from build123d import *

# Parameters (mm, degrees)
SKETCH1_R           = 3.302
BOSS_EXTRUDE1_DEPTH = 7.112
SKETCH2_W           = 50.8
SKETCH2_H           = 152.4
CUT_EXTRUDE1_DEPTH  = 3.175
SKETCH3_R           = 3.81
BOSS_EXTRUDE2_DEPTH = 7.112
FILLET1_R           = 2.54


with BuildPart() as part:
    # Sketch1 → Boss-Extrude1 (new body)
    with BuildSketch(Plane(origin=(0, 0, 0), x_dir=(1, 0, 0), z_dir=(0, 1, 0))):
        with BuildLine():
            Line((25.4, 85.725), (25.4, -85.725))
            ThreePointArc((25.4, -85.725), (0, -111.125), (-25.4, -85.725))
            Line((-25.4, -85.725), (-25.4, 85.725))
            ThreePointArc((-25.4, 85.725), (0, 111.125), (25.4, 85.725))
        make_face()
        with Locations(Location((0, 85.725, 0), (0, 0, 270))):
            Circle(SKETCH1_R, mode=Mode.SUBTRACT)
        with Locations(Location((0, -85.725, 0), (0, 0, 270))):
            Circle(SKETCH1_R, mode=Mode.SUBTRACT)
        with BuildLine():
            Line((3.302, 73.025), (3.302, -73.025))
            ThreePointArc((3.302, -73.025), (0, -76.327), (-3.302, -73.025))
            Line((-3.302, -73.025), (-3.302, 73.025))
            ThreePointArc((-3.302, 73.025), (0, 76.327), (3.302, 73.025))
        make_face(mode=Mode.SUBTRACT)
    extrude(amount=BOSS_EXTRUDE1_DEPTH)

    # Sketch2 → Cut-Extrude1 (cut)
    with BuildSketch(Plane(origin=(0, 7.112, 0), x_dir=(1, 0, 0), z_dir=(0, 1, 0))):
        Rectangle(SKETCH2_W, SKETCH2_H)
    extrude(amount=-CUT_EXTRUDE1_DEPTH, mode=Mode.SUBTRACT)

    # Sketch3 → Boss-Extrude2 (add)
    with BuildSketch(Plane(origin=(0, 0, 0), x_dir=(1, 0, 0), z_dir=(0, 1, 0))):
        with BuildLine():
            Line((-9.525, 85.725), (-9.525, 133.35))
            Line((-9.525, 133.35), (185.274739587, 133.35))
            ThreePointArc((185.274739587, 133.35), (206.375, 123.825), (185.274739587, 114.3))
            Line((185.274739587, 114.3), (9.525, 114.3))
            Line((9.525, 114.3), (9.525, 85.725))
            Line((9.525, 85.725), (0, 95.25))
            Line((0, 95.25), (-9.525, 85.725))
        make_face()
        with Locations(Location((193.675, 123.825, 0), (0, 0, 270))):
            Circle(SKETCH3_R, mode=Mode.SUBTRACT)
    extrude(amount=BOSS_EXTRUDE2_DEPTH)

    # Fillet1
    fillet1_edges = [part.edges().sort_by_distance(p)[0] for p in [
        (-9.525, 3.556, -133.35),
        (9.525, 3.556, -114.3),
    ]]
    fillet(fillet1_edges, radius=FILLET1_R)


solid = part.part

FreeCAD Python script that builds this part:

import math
import FreeCAD as App
import Part
import Sketcher
from FreeCAD import Vector
Q = App.Units.Quantity


def edges_at(feature, points):
    """Names of the edges that pass closest to the given points."""
    edges = feature.Shape.Edges
    near = lambda p: min(range(len(edges)), key=lambda i: edges[i].distToShape(Part.Vertex(*p))[0])
    return sorted({f"Edge{near(p) + 1}" for p in points})


def add_polygon(sketch, points):
    """Adds a closed chain of lines whose ends are joined by coincident constraints."""
    first, n = sketch.GeometryCount, len(points)
    for a, b in zip(points, points[1:] + points[:1]):
        sketch.addGeometry(Part.LineSegment(App.Vector(*a, 0), App.Vector(*b, 0)), False)
    for i in range(n):
        sketch.addConstraint(Sketcher.Constraint("Coincident", first + i, 2, first + (i + 1) % n, 1))

doc = App.newDocument("Part")
body = doc.addObject("PartDesign::Body", "Body")

sketch1 = body.newObject("Sketcher::SketchObject", "Sketch")
sketch1.AttachmentSupport = (doc.getObject("XZ_Plane"), [""])
sketch1.MapMode = "FlatFace"
sketch1.addGeometry(Part.LineSegment(Vector(25.4, 85.725, 0), Vector(25.4, -85.725, 0)), False)
sketch1.addGeometry(Part.ArcOfCircle(Part.Circle(Vector(0, -85.725, 0), Vector(0, 0, 1), 25.4), math.radians(180), math.radians(360)), False)
sketch1.addGeometry(Part.LineSegment(Vector(-25.4, -85.725, 0), Vector(-25.4, 85.725, 0)), False)
sketch1.addGeometry(Part.ArcOfCircle(Part.Circle(Vector(0, 85.725, 0), Vector(0, 0, 1), 25.4), math.radians(0), math.radians(180)), False)
sketch1.addGeometry(Part.Circle(Vector(0, 85.725, 0), Vector(0, 0, 1), 3.302), False)
sketch1.addGeometry(Part.LineSegment(Vector(3.302, -73.025, 0), Vector(3.302, 73.025, 0)), False)
sketch1.addGeometry(Part.ArcOfCircle(Part.Circle(Vector(0, 73.025, 0), Vector(0, 0, 1), 3.302), math.radians(0), math.radians(180)), False)
sketch1.addGeometry(Part.LineSegment(Vector(-3.302, 73.025, 0), Vector(-3.302, -73.025, 0)), False)
sketch1.addGeometry(Part.ArcOfCircle(Part.Circle(Vector(0, -73.025, 0), Vector(0, 0, 1), 3.302), math.radians(180), math.radians(360)), False)
sketch1.addGeometry(Part.Circle(Vector(0, -85.725, 0), Vector(0, 0, 1), 3.302), False)
sketch1.addConstraint(Sketcher.Constraint("Tangent", 0, 2, 1, 2))
sketch1.addConstraint(Sketcher.Constraint("Tangent", 1, 1, 2, 1))
sketch1.addConstraint(Sketcher.Constraint("Tangent", 2, 2, 3, 2))
sketch1.addConstraint(Sketcher.Constraint("Tangent", 3, 1, 0, 1))
sketch1.addConstraint(Sketcher.Constraint("Tangent", 5, 2, 6, 1))
sketch1.addConstraint(Sketcher.Constraint("Tangent", 6, 2, 7, 1))
sketch1.addConstraint(Sketcher.Constraint("Tangent", 7, 2, 8, 1))
sketch1.addConstraint(Sketcher.Constraint("Tangent", 8, 2, 5, 1))
sketch1.addConstraint(Sketcher.Constraint("Vertical", 0))
sketch1.addConstraint(Sketcher.Constraint("Vertical", 2))
sketch1.addConstraint(Sketcher.Constraint("Vertical", 5))
sketch1.addConstraint(Sketcher.Constraint("Vertical", 7))
sketch1.addConstraint(Sketcher.Constraint("Coincident", 4, 3, 3, 3))
sketch1.addConstraint(Sketcher.Constraint("Coincident", 9, 3, 1, 3))
sketch1.addConstraint(Sketcher.Constraint("Equal", 4, 6))
sketch1.addConstraint(Sketcher.Constraint("Equal", 8, 9))
sketch1.addConstraint(Sketcher.Constraint("Symmetric", 1, 3, 3, 3, -1, 1))
sketch1.addConstraint(Sketcher.Constraint("Symmetric", 6, 3, 8, 3, -1, 1))
sketch1.addConstraint(Sketcher.Constraint("Radius", 1, Q("1 in")))
sketch1.addConstraint(Sketcher.Constraint("Diameter", 4, Q("0.26 in")))
sketch1.addConstraint(Sketcher.Constraint("DistanceY", 0, 2, 0, 1, Q("6.75 in")))
sketch1.addConstraint(Sketcher.Constraint("DistanceY", 5, 1, 5, 2, Q("5.75 in")))
pad1 = body.newObject("PartDesign::Pad", "Pad")
pad1.Profile = sketch1
pad1.Length = Q("0.28 in")
pad1.Reversed = True

sketch2 = body.newObject("Sketcher::SketchObject", "Sketch001")
sketch2.AttachmentSupport = (doc.getObject("XZ_Plane"), [""])
sketch2.MapMode = "FlatFace"
sketch2.AttachmentOffset = App.Placement(Vector(0, 0, -0.28 * 25.4), App.Rotation())
add_polygon(sketch2, [(-25.4, -76.2), (-25.4, 76.2), (25.4, 76.2), (25.4, -76.2)])
sketch2.addConstraint(Sketcher.Constraint("Vertical", 0))
sketch2.addConstraint(Sketcher.Constraint("Horizontal", 1))
sketch2.addConstraint(Sketcher.Constraint("Vertical", 2))
sketch2.addConstraint(Sketcher.Constraint("Horizontal", 3))
sketch2.addConstraint(Sketcher.Constraint("Symmetric", 0, 2, 2, 2, -1, 1))
sketch2.addConstraint(Sketcher.Constraint("DistanceX", 1, 1, 1, 2, Q("2 in")))
sketch2.addConstraint(Sketcher.Constraint("DistanceY", 0, 1, 0, 2, Q("6 in")))
pocket1 = body.newObject("PartDesign::Pocket", "Pocket")
pocket1.Profile = sketch2
pocket1.Length = Q("0.125 in")
pocket1.Reversed = True

sketch3 = body.newObject("Sketcher::SketchObject", "Sketch002")
sketch3.AttachmentSupport = (doc.getObject("XZ_Plane"), [""])
sketch3.MapMode = "FlatFace"
sketch3.addGeometry(Part.LineSegment(Vector(-9.525, -133.35, 0), Vector(-9.525, -85.725, 0)), False)
sketch3.addGeometry(Part.LineSegment(Vector(-9.525, -85.725, 0), Vector(0, -95.25, 0)), False)
sketch3.addGeometry(Part.LineSegment(Vector(0, -95.25, 0), Vector(9.525, -85.725, 0)), False)
sketch3.addGeometry(Part.LineSegment(Vector(9.525, -85.725, 0), Vector(9.525, -114.3, 0)), False)
sketch3.addGeometry(Part.LineSegment(Vector(9.525, -114.3, 0), Vector(185.27474, -114.3, 0)), False)
sketch3.addGeometry(Part.ArcOfCircle(Part.Circle(Vector(193.675, -123.825, 0), Vector(0, 0, 1), 12.7), math.radians(-131.409622), math.radians(131.409622)), False)
sketch3.addGeometry(Part.LineSegment(Vector(185.27474, -133.35, 0), Vector(-9.525, -133.35, 0)), False)
sketch3.addGeometry(Part.Circle(Vector(193.675, -123.825, 0), Vector(0, 0, 1), 3.81), False)
sketch3.addConstraint(Sketcher.Constraint("Coincident", 0, 2, 1, 1))
sketch3.addConstraint(Sketcher.Constraint("Coincident", 1, 2, 2, 1))
sketch3.addConstraint(Sketcher.Constraint("Coincident", 2, 2, 3, 1))
sketch3.addConstraint(Sketcher.Constraint("Coincident", 3, 2, 4, 1))
sketch3.addConstraint(Sketcher.Constraint("Coincident", 4, 2, 5, 2))
sketch3.addConstraint(Sketcher.Constraint("Coincident", 5, 1, 6, 1))
sketch3.addConstraint(Sketcher.Constraint("Coincident", 6, 2, 0, 1))
sketch3.addConstraint(Sketcher.Constraint("Vertical", 0))
sketch3.addConstraint(Sketcher.Constraint("Vertical", 3))
sketch3.addConstraint(Sketcher.Constraint("Horizontal", 4))
sketch3.addConstraint(Sketcher.Constraint("Horizontal", 6))
sketch3.addConstraint(Sketcher.Constraint("Coincident", 7, 3, 5, 3))
sketch3.addConstraint(Sketcher.Constraint("Symmetric", 0, 2, 2, 2, -2))
sketch3.addConstraint(Sketcher.Constraint("PointOnObject", 1, 2, -2))
sketch3.addConstraint(Sketcher.Constraint("Perpendicular", 1, 2))
sketch3.addConstraint(Sketcher.Constraint("Vertical", 4, 2, 5, 1))
sketch3.addConstraint(Sketcher.Constraint("Diameter", 7, Q("0.3 in")))
sketch3.addConstraint(Sketcher.Constraint("Radius", 5, Q("0.5 in")))
sketch3.addConstraint(Sketcher.Constraint("DistanceX", 0, 2, 5, 3, Q("8 in")))
sketch3.addConstraint(Sketcher.Constraint("DistanceY", 3, 2, -1, 1, Q("4.5 in")))
sketch3.addConstraint(Sketcher.Constraint("DistanceY", 5, 3, 0, 2, Q("1.5 in")))
sketch3.addConstraint(Sketcher.Constraint("DistanceY", 6, 2, 1, 2, Q("1.5 in")))
sketch3.addConstraint(Sketcher.Constraint("DistanceY", 0, 1, 0, 2, Q("1.875 in")))
pad2 = body.newObject("PartDesign::Pad", "Pad001")
pad2.Profile = sketch3
pad2.Length = Q("0.28 in")
pad2.Reversed = True
doc.recompute()

fillet = body.newObject("PartDesign::Fillet", "Fillet")
fillet.Base = (pad2, edges_at(pad2, [(-9.525, 3.556, -133.35), (9.525, 3.556, -114.3)]))
fillet.Radius = Q("0.1 in")

doc.recompute()
